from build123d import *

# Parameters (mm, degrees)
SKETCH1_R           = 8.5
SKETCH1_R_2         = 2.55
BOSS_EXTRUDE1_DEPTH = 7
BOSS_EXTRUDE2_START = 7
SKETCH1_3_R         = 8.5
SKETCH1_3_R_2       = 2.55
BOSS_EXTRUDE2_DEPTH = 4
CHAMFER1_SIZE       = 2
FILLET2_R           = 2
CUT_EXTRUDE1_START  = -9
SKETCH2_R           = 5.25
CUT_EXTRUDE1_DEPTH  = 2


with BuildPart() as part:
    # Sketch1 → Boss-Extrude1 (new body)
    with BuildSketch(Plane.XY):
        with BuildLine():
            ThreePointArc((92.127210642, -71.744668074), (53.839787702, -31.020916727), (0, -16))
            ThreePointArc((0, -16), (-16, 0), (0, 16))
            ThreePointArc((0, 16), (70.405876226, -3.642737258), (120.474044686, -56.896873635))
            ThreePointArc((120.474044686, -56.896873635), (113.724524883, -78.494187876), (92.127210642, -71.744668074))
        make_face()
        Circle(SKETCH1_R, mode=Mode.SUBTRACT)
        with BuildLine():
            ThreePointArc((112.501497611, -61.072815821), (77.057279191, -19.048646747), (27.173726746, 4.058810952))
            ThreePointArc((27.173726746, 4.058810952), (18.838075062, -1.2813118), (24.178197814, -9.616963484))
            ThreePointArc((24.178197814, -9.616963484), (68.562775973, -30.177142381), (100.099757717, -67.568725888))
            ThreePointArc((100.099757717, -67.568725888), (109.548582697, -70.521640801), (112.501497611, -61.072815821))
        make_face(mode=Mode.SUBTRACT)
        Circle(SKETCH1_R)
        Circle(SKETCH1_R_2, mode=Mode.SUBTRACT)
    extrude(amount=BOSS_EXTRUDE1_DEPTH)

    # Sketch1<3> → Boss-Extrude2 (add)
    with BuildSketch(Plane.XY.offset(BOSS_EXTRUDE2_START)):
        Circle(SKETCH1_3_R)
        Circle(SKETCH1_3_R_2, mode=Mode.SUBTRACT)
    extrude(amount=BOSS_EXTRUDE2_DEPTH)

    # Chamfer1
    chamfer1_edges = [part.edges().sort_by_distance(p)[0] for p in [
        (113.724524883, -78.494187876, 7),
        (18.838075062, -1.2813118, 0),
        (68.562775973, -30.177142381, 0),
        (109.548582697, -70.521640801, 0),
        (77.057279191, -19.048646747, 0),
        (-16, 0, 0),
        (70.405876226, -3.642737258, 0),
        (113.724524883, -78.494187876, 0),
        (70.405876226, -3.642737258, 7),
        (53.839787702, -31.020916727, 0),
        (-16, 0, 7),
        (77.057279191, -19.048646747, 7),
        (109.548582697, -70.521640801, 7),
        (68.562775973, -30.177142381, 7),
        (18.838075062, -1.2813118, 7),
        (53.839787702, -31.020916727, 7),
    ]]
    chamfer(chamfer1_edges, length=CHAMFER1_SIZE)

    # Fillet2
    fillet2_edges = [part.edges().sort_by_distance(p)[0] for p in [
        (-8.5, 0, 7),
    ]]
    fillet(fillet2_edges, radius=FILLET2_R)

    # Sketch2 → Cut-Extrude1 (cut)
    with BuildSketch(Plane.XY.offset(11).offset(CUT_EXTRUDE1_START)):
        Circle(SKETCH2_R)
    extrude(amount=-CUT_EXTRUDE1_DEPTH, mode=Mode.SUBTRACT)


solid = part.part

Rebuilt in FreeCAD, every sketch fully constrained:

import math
import FreeCAD as App
import Part
import Sketcher
from FreeCAD import Vector


def edges_at(feature, points):
    """Names of the edges that pass closest to the given points."""
    edges = feature.Shape.Edges
    near = lambda p: min(range(len(edges)), key=lambda i: edges[i].distToShape(Part.Vertex(*p))[0])
    return sorted({f"Edge{near(p) + 1}" for p in points})

doc = App.newDocument("Part")
body = doc.addObject("PartDesign::Body", "Body")

# Sketch on XY plane
sketch1 = body.newObject("Sketcher::SketchObject", "Sketch")
sketch1.AttachmentSupport = (doc.getObject("XY_Plane"), [""])
sketch1.MapMode = "FlatFace"
sketch1.addGeometry([
    Part.ArcOfCircle(Part.Circle(Vector(0, -120, 0), Vector(0, 0, 1), 104), math.radians(28), math.radians(90)),  # 0
    Part.ArcOfCircle(Part.Circle(Vector(106.3, -64.3, 0), Vector(0, 0, 1), 16), math.radians(-152), math.radians(28)),  # 1
    Part.ArcOfCircle(Part.Circle(Vector(0, -120, 0), Vector(0, 0, 1), 136), math.radians(28), math.radians(90)),  # 2
    Part.ArcOfCircle(Part.Circle(Vector(0, 0, 0), Vector(0, 0, 1), 16), math.radians(90), math.radians(270)),  # 3
    Part.ArcOfCircle(Part.Circle(Vector(106.3, -64.3, 0), Vector(0, 0, 1), 7), math.radians(-152), math.radians(28)),  # 4
    Part.ArcOfCircle(Part.Circle(Vector(0, -120, 0), Vector(0, 0, 1), 113), math.radians(28), math.radians(78)),  # 5
    Part.ArcOfCircle(Part.Circle(Vector(25.7, -2.8, 0), Vector(0, 0, 1), 7), math.radians(78), math.radians(258)),  # 6
    Part.ArcOfCircle(Part.Circle(Vector(0, -120, 0), Vector(0, 0, 1), 127), math.radians(28), math.radians(78)),  # 7
    Part.Circle(Vector(0, 0, 0), Vector(0, 0, 1), 2.5),  # 8
], False)
sketch1.addConstraint([
    Sketcher.Constraint("Tangent", 0, 1, 1, 1),
    Sketcher.Constraint("Tangent", 1, 2, 2, 1),
    Sketcher.Constraint("Tangent", 2, 2, 3, 1),
    Sketcher.Constraint("Tangent", 3, 2, 0, 2),
    Sketcher.Constraint("Tangent", 4, 1, 5, 1),
    Sketcher.Constraint("Tangent", 5, 2, 6, 2),
    Sketcher.Constraint("Tangent", 6, 1, 7, 2),
    Sketcher.Constraint("Tangent", 7, 1, 4, 2),
    Sketcher.Constraint("Coincident", 3, 3, -1, 1),
    Sketcher.Constraint("Coincident", 8, 3, -1, 1),
    Sketcher.Constraint("Coincident", 2, 3, 0, 3),
    Sketcher.Constraint("Coincident", 4, 3, 1, 3),
    Sketcher.Constraint("Coincident", 5, 3, 0, 3),
    Sketcher.Constraint("Coincident", 7, 3, 0, 3),
    Sketcher.Constraint("PointOnObject", 0, 3, -2),
    Sketcher.Constraint("Radius", 0, 104.0),
    Sketcher.Constraint("Radius", 1, 16.0),
    Sketcher.Constraint("Radius", 4, 7.0),
    Sketcher.Constraint("Diameter", 8, 5.1),
    Sketcher.Constraint("DistanceY", 1, 3, -1, 1, 64.320771),
    Sketcher.Constraint("DistanceY", -1, 1, 6, 1, 4.058811),
])
pad1 = body.newObject("PartDesign::Pad", "Pad")
pad1.Profile = sketch1
pad1.Length = 7

# Sketch on XY plane
sketch2 = body.newObject("Sketcher::SketchObject", "Sketch001")
sketch2.AttachmentSupport = (doc.getObject("XY_Plane"), [""])
sketch2.MapMode = "FlatFace"
sketch2.AttachmentOffset = App.Placement(Vector(0, 0, 7), App.Rotation())
sketch2.addGeometry([
    Part.Circle(Vector(0, 0, 0), Vector(0, 0, 1), 8.5),
    Part.Circle(Vector(0, 0, 0), Vector(0, 0, 1), 2.5),
], False)
sketch2.addConstraint([
    Sketcher.Constraint("Coincident", 0, 3, -1, 1),
    Sketcher.Constraint("Coincident", 1, 3, -1, 1),
    Sketcher.Constraint("Diameter", 0, 17.0),
    Sketcher.Constraint("Diameter", 1, 5.1),
])
pad2 = body.newObject("PartDesign::Pad", "Pad001")
pad2.Profile = sketch2
pad2.Length = 4
doc.recompute()

chamfer = body.newObject("PartDesign::Chamfer", "Chamfer")
chamfer.Base = (pad2, edges_at(pad2, [
    (113.725, -78.494, 7),
    (18.838, -1.281, 0),
    (68.563, -30.177, 0),
    (109.549, -70.522, 0),
    (77.057, -19.049, 0),
    (-16, 0, 0),
    (70.406, -3.643, 0),
    (113.725, -78.494, 0),
    (70.406, -3.643, 7),
    (53.84, -31.021, 0),
    (-16, 0, 7),
    (77.057, -19.049, 7),
    (109.549, -70.522, 7),
    (68.563, -30.177, 7),
    (18.838, -1.281, 7),
    (53.84, -31.021, 7),
]))
chamfer.Size = 2
doc.recompute()

fillet = body.newObject("PartDesign::Fillet", "Fillet")
fillet.Base = (chamfer, edges_at(chamfer, [(-8.5, 0, 7)]))
fillet.Radius = 2

# Sketch on XY plane
sketch3 = body.newObject("Sketcher::SketchObject", "Sketch002")
sketch3.AttachmentSupport = (doc.getObject("XY_Plane"), [""])
sketch3.MapMode = "FlatFace"
sketch3.AttachmentOffset = App.Placement(Vector(0, 0, 2), App.Rotation())
sketch3.addGeometry(Part.Circle(Vector(0, 0, 0), Vector(0, 0, 1), 5), False)
sketch3.addConstraint([
    Sketcher.Constraint("Coincident", 0, 3, -1, 1),
    Sketcher.Constraint("Diameter", 0, 10.5),
])
pocket1 = body.newObject("PartDesign::Pocket", "Pocket")
pocket1.Profile = sketch3
pocket1.Length = 2

doc.recompute()
